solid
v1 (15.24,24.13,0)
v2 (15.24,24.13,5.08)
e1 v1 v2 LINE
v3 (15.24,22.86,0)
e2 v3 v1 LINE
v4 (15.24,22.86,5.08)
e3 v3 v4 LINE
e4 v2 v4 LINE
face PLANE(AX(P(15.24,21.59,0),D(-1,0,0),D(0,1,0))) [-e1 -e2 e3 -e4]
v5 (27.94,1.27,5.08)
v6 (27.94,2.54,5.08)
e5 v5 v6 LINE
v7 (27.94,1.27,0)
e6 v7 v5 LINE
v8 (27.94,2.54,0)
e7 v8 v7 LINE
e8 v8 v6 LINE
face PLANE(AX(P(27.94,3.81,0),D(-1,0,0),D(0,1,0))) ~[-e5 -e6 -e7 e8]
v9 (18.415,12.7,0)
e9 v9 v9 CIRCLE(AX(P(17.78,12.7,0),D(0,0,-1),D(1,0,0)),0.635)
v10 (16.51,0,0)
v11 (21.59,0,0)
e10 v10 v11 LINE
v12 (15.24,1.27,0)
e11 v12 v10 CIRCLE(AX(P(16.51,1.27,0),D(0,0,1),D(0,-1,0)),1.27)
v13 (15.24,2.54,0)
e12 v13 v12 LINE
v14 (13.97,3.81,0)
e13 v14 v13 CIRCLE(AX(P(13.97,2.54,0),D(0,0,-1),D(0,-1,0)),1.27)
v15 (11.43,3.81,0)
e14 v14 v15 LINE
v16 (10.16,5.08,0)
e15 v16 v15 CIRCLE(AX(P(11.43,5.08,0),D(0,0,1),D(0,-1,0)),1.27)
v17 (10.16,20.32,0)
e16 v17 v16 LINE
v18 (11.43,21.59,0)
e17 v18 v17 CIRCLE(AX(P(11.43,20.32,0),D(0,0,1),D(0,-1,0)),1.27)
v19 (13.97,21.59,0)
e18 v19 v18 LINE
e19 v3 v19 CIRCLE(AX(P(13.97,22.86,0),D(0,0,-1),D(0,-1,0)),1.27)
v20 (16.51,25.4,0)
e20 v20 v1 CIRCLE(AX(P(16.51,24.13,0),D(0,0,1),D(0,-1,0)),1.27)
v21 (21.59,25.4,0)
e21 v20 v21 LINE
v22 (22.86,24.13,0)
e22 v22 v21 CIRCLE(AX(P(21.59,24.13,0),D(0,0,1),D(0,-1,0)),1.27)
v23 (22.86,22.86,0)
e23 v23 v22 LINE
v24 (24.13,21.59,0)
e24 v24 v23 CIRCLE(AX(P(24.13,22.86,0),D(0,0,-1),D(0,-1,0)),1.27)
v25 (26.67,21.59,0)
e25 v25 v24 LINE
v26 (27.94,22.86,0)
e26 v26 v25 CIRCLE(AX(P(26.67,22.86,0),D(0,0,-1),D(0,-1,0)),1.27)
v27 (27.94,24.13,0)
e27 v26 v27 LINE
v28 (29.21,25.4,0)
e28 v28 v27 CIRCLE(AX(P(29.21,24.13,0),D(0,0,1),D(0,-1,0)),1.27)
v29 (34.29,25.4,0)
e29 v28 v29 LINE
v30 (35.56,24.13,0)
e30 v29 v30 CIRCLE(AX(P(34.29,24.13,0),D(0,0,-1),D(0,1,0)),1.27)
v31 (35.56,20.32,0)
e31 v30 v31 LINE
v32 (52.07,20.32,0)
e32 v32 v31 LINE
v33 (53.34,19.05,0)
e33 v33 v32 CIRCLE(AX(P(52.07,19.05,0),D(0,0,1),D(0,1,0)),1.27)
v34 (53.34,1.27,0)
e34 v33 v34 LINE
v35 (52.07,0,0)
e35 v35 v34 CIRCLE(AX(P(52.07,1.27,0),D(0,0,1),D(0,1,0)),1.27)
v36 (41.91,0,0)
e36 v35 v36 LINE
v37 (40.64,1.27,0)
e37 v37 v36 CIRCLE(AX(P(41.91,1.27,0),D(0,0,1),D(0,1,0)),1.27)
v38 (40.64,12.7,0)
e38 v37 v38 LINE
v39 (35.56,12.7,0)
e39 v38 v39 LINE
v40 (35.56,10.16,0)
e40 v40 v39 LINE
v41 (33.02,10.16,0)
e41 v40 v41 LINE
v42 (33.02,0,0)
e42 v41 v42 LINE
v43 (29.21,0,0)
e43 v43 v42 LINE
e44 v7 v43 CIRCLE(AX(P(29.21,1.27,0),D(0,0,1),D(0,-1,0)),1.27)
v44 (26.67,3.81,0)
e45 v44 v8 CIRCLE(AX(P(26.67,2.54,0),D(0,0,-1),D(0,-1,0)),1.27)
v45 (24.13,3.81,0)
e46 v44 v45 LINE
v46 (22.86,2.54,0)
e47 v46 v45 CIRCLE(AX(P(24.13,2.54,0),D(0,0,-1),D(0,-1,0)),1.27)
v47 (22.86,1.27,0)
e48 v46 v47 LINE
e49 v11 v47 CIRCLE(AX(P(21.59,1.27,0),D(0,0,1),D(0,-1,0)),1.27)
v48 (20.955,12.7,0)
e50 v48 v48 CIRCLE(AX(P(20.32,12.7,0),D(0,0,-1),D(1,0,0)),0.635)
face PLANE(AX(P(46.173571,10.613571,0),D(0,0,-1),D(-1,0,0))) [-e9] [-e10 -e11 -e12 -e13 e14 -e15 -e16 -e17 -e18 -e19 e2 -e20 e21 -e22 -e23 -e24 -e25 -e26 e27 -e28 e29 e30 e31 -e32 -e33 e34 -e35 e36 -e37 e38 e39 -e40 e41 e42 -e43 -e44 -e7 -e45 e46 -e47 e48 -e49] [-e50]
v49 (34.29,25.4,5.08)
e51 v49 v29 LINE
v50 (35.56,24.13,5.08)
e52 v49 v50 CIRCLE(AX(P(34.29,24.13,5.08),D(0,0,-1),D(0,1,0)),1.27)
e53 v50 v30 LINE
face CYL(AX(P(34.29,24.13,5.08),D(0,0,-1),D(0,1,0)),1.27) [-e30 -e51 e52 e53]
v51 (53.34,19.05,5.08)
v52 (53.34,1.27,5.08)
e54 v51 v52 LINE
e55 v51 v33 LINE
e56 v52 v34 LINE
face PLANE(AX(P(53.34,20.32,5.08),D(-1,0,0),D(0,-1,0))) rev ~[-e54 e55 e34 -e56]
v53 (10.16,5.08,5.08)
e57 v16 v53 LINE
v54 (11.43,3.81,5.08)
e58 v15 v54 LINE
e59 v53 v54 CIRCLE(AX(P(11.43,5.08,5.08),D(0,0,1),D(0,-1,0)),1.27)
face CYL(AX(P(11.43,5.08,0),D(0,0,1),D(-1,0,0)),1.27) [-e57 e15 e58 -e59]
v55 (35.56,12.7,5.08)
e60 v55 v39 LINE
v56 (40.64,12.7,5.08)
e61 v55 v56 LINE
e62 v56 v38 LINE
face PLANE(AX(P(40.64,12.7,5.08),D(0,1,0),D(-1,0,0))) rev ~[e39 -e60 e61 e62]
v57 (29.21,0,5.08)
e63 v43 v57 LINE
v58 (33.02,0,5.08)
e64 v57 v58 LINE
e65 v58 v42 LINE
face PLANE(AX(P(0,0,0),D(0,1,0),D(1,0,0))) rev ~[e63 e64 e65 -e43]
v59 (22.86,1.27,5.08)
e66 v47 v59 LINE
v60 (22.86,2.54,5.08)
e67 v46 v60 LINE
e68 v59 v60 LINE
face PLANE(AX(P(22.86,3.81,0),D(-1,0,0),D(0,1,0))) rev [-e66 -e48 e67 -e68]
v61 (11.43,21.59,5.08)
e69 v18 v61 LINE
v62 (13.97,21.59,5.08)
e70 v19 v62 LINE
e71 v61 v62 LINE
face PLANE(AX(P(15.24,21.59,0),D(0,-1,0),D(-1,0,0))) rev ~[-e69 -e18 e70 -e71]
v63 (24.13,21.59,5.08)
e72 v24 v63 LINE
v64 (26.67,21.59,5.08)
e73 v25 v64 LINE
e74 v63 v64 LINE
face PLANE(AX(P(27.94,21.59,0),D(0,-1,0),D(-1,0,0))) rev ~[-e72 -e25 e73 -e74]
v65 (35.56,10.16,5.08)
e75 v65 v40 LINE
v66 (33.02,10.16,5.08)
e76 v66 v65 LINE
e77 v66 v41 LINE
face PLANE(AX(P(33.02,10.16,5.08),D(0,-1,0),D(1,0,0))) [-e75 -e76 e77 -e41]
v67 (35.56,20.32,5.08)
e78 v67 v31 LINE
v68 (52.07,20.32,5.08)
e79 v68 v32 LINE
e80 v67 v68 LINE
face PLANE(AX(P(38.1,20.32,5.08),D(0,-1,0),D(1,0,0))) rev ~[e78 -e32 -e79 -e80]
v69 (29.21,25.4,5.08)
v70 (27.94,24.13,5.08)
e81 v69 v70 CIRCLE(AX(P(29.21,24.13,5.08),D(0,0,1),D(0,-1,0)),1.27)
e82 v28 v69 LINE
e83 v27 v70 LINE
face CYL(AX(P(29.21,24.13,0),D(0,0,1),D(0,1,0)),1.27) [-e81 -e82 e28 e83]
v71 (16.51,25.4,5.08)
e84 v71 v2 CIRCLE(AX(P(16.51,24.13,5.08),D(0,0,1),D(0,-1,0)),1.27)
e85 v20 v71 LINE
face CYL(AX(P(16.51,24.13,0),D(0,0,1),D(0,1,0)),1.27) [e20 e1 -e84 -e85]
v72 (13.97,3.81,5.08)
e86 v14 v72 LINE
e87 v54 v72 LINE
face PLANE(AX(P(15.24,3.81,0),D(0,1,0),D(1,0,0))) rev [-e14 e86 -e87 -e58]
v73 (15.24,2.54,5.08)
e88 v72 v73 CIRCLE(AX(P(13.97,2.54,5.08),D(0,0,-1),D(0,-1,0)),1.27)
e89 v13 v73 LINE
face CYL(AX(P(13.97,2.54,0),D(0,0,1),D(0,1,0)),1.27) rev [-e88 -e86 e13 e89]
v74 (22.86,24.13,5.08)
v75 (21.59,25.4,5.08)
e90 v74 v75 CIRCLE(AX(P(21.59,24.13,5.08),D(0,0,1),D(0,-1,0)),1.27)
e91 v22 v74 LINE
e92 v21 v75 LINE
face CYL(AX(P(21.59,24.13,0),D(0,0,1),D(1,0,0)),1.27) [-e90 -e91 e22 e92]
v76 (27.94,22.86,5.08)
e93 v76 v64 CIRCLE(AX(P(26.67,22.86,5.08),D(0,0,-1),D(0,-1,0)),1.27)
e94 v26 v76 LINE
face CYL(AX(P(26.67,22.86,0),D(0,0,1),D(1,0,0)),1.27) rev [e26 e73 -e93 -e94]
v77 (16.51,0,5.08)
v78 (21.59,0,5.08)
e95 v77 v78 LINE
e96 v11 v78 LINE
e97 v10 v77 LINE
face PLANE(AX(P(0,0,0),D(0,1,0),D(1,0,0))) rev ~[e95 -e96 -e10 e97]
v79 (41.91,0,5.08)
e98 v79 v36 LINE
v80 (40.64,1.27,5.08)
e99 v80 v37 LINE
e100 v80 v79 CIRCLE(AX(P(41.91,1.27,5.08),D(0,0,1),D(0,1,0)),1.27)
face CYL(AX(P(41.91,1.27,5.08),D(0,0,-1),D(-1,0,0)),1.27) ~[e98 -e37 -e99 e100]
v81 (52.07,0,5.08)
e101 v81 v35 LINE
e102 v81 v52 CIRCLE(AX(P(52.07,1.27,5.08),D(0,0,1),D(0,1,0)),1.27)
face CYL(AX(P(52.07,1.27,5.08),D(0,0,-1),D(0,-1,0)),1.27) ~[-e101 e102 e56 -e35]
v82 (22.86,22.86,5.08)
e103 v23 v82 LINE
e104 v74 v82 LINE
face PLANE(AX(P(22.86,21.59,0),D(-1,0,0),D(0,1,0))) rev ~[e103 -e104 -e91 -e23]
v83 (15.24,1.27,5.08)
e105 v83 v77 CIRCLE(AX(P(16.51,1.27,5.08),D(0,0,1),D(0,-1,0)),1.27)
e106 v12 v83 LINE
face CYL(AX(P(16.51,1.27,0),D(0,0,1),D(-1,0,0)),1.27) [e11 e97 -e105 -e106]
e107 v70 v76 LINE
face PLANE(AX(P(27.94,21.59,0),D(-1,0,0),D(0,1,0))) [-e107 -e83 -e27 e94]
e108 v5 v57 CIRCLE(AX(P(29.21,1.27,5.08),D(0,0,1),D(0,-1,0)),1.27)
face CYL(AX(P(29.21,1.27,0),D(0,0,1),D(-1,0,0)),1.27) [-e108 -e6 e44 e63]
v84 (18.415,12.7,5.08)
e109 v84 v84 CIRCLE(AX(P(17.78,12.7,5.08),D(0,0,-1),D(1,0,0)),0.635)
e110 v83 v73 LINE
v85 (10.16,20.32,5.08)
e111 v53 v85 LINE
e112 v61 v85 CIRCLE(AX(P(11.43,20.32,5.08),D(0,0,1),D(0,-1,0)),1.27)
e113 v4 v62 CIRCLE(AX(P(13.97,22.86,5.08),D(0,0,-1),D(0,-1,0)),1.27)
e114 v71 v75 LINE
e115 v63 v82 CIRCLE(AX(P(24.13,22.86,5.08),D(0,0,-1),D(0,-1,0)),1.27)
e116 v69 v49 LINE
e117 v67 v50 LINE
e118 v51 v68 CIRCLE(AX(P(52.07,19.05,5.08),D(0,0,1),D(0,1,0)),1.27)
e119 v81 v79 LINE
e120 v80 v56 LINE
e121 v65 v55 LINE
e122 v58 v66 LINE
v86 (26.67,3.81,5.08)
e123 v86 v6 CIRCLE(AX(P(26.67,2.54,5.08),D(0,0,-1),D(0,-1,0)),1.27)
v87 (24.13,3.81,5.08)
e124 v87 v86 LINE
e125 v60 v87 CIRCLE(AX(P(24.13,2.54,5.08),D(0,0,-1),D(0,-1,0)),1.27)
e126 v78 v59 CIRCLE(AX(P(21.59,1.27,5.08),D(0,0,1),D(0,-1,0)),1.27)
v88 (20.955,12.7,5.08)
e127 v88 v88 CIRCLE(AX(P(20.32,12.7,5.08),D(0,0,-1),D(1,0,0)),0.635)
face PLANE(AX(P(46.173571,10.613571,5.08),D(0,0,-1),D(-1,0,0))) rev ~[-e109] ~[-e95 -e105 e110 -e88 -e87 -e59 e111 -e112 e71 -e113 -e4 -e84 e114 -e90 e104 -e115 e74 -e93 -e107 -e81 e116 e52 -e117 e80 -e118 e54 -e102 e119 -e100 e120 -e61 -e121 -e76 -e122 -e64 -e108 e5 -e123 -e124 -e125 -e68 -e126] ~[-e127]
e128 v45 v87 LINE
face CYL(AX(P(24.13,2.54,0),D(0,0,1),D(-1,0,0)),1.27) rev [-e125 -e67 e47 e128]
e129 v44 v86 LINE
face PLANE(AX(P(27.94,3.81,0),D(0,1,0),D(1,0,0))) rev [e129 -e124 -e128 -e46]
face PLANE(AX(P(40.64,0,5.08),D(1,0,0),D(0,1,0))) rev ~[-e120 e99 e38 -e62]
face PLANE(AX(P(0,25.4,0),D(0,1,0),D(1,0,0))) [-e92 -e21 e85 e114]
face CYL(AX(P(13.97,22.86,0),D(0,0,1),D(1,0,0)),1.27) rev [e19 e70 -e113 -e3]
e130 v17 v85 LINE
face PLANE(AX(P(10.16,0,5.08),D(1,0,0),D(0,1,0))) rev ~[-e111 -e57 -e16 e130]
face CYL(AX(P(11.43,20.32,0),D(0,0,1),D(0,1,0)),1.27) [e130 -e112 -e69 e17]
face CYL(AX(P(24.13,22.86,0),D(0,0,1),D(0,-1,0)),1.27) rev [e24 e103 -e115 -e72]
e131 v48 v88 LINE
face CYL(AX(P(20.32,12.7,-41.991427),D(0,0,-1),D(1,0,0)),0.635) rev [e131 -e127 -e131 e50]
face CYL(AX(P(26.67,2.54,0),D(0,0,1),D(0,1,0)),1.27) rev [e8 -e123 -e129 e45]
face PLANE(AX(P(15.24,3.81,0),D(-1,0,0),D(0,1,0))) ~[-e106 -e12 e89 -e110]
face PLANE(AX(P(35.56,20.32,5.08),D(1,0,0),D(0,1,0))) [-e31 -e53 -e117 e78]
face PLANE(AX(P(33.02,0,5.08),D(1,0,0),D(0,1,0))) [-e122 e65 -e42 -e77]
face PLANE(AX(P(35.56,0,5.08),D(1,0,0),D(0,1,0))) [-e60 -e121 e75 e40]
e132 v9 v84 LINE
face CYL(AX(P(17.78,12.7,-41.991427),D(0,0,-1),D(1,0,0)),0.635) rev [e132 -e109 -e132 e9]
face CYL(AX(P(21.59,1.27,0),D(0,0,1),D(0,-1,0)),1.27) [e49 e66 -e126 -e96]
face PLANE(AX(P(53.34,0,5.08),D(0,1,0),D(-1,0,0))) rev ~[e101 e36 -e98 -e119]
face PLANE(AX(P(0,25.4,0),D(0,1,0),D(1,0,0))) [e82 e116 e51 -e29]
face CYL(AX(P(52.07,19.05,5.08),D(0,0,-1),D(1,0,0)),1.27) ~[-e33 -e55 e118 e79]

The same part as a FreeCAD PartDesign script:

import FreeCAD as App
import Part
import Sketcher

V = App.Vector
Q = App.Units.Quantity


def edges_at(feature, points):
    """Names of the edges that pass closest to the given points."""
    edges = feature.Shape.Edges
    near = lambda p: min(range(len(edges)), key=lambda i: edges[i].distToShape(Part.Vertex(*p))[0])
    return sorted({f"Edge{near(p) + 1}" for p in points})


def add_polygon(sketch, points):
    """Adds a closed chain of lines whose ends are joined by coincident constraints."""
    first, n = sketch.GeometryCount, len(points)
    for a, b in zip(points, points[1:] + points[:1]):
        sketch.addGeometry(Part.LineSegment(App.Vector(*a, 0), App.Vector(*b, 0)), False)
    for i in range(n):
        sketch.addConstraint(Sketcher.Constraint("Coincident", first + i, 2, first + (i + 1) % n, 1))

doc = App.newDocument("Part")
params = doc.addObject("Spreadsheet::Sheet", "Params")
for row, (alias, value) in enumerate([
    ("sketch1_height", "1 in"),
    ("sketch1_width", "1.5 in"),
    ("pad1_length", "0.2 in"),
    ("sketch2_diameter", "0.05 in"),
    ("sketch3_width", "0.2 in"),
    ("sketch3_height", "0.15 in"),
    ("sketch4_width", "0.1 in"),
    ("sketch4_height", "0.5 in"),
    ("sketch5_width", "0.6 in"),
    ("sketch5_width2", "0.1 in"),
    ("sketch5_height", "0.3 in"),
    ("pad2_length", "0.2 in"),
    ("sketch6_height", "1 in"),
    ("sketch6_width", "0.4 in"),
    ("sketch7_width", "0.1 in"),
    ("sketch7_height", "0.2 in"),
    ("fillet_radius", "0.05 in"),
    ("sketch8_width", "0.1 in"),
    ("sketch8_height", "0.4 in"),
    ("fillet2_radius", "0.05 in"),
], start=1):
    params.set(f"A{row}", alias)
    params.set(f"B{row}", "=" + value)
    params.setAlias(f"B{row}", alias)

body = doc.addObject("PartDesign::Body", "Body")

# Sketch on XY plane
sketch1 = body.newObject("Sketcher::SketchObject", "Sketch")
sketch1.AttachmentSupport = (doc.getObject("XY_Plane"), [""])
sketch1.MapMode = "FlatFace"
add_polygon(sketch1, [(0, 25), (0, 0), (38, 0), (38, 25)])  # lines 0-3
sketch1.addConstraint([
    Sketcher.Constraint("Vertical", 0),
    Sketcher.Constraint("Horizontal", 1),
    Sketcher.Constraint("Vertical", 2),
    Sketcher.Constraint("Horizontal", 3),
    Sketcher.Constraint("Coincident", 0, 2, -1, 1),
    Sketcher.Constraint("DistanceY", 0, 2, 0, 1, Q("1 in")),
    Sketcher.Constraint("DistanceX", 1, 1, 1, 2, Q("1.5 in")),
])
sketch1.setExpression("Constraints[9]", "Params.sketch1_height")
sketch1.setExpression("Constraints[10]", "Params.sketch1_width")
pad1 = body.newObject("PartDesign::Pad", "Pad")
pad1.Profile = sketch1
pad1.setExpression("Length", "Params.pad1_length")

# Sketch on XY plane
sketch2 = body.newObject("Sketcher::SketchObject", "Sketch001")
sketch2.AttachmentSupport = (doc.getObject("XY_Plane"), [""])
sketch2.MapMode = "FlatFace"
sketch2.AttachmentOffset = App.Placement(V(0, 0, 0.2 * 25.4), App.Rotation())
sketch2.addGeometry([
    Part.Circle(V(17.8, 12.7, 0), V(0, 0, 1), 0.6),
    Part.Circle(V(20.3, 12.7, 0), V(0, 0, 1), 0.6),
], False)
sketch2.addConstraint([
    Sketcher.Constraint("Equal", 0, 1),
    Sketcher.Constraint("Horizontal", 0, 3, 1, 3),
    Sketcher.Constraint("Diameter", 0, Q("0.05 in")),
    Sketcher.Constraint("DistanceX", -1, 1, 0, 3, Q("0.7 in")),
    Sketcher.Constraint("DistanceY", -1, 1, 0, 3, Q("0.5 in")),
    Sketcher.Constraint("DistanceX", -1, 1, 1, 3, Q("0.8 in")),
])
sketch2.setExpression("Constraints[2]", "Params.sketch2_diameter")
pocket1 = body.newObject("PartDesign::Pocket", "Pocket")
pocket1.Profile = sketch2
pocket1.Type = "ThroughAll"
pocket1.Midplane = True

# Sketch on XY plane
sketch3 = body.newObject("Sketcher::SketchObject", "Sketch002")
sketch3.AttachmentSupport = (doc.getObject("XY_Plane"), [""])
sketch3.MapMode = "FlatFace"
add_polygon(sketch3, [(27.9, 25.4), (27.9, 21.6), (22.9, 21.6), (22.9, 25.4)])  # lines 0-3
add_polygon(sketch3, [(15.2, 25.4), (15.2, 21.6), (10.2, 21.6), (10.2, 25.4)])  # lines 4-7
sketch3.addConstraint([
    Sketcher.Constraint("Vertical", 0),
    Sketcher.Constraint("Horizontal", 1),
    Sketcher.Constraint("Vertical", 2),
    Sketcher.Constraint("Horizontal", 3),
    Sketcher.Constraint("Vertical", 4),
    Sketcher.Constraint("Horizontal", 5),
    Sketcher.Constraint("Vertical", 6),
    Sketcher.Constraint("Horizontal", 7),
    Sketcher.Constraint("Horizontal", 1, 2, 4, 2),
    Sketcher.Constraint("Horizontal", 3, 2, 6, 2),
    Sketcher.Constraint("Equal", 3, 5),
    Sketcher.Constraint("DistanceX", 1, 2, 1, 1, Q("0.2 in")),
    Sketcher.Constraint("DistanceY", -1, 1, 2, 2, Q("1 in")),
    Sketcher.Constraint("DistanceY", 0, 2, 0, 1, Q("0.15 in")),
    Sketcher.Constraint("DistanceX", -1, 1, 0, 2, Q("1.1 in")),
    Sketcher.Constraint("DistanceX", -1, 1, 4, 2, Q("0.6 in")),
])
sketch3.setExpression("Constraints[19]", "Params.sketch3_width")
sketch3.setExpression("Constraints[21]", "Params.sketch3_height")
pocket2 = body.newObject("PartDesign::Pocket", "Pocket001")
pocket2.Profile = sketch3
pocket2.Type = "ThroughAll"
pocket2.Reversed = True
doc.recompute()

datumplane = body.newObject("PartDesign::Plane", "DatumPlane")
datumplane.AttachmentSupport = (doc.getObject("XZ_Plane"), [""])
datumplane.MapMode = "FlatFace"
datumplane.AttachmentOffset = App.Placement(V(0, 0, -0.5 * 25.4), App.Rotation())
mirrored = body.newObject("PartDesign::Mirrored", "Mirrored")
mirrored.Originals = [pocket2]
mirrored.MirrorPlane = (datumplane, [""])
body.Tip = mirrored

# Sketch on XY plane
sketch4 = body.newObject("Sketcher::SketchObject", "Sketch003")
sketch4.AttachmentSupport = (doc.getObject("XY_Plane"), [""])
sketch4.MapMode = "FlatFace"
sketch4.AttachmentOffset = App.Placement(V(0, 0, 0.2 * 25.4), App.Rotation())
add_polygon(sketch4, [(35.6, 12.7), (35.6, 0), (38.1, 0), (38.1, 12.7)])  # lines 0-3
sketch4.addConstraint([
    Sketcher.Constraint("Vertical", 0),
    Sketcher.Constraint("Horizontal", 1),
    Sketcher.Constraint("Vertical", 2),
    Sketcher.Constraint("Horizontal", 3),
    Sketcher.Constraint("PointOnObject", 0, 2, -1),
    Sketcher.Constraint("DistanceX", 1, 1, 1, 2, Q("0.1 in")),
    Sketcher.Constraint("DistanceY", 0, 2, 0, 1, Q("0.5 in")),
    Sketcher.Constraint("DistanceX", -1, 1, 0, 2, Q("1.4 in")),
])
sketch4.setExpression("Constraints[9]", "Params.sketch4_width")
sketch4.setExpression("Constraints[10]", "Params.sketch4_height")
pocket3 = body.newObject("PartDesign::Pocket", "Pocket002")
pocket3.Profile = sketch4
pocket3.Type = "ThroughAll"

# Sketch on XY plane
sketch5 = body.newObject("Sketcher::SketchObject", "Sketch004")
sketch5.AttachmentSupport = (doc.getObject("XY_Plane"), [""])
sketch5.MapMode = "FlatFace"
sketch5.AttachmentOffset = App.Placement(V(0, 0, 0.2 * 25.4), App.Rotation())
add_polygon(sketch5, [(53.3, 20.3), (38.1, 20.3), (38.1, 12.7), (40.6, 12.7), (40.6, 0), (53.3, 0)])  # lines 0-5
sketch5.addConstraint([
    Sketcher.Constraint("Horizontal", 0),
    Sketcher.Constraint("Vertical", 1),
    Sketcher.Constraint("Horizontal", 2),
    Sketcher.Constraint("Vertical", 3),
    Sketcher.Constraint("Horizontal", 4),
    Sketcher.Constraint("Vertical", 5),
    Sketcher.Constraint("PointOnObject", 3, 2, -1),
    Sketcher.Constraint("Equal", 4, 3),
    Sketcher.Constraint("DistanceX", 0, 2, 0, 1, Q("0.6 in")),
    Sketcher.Constraint("DistanceX", 2, 1, 2, 2, Q("0.1 in")),
    Sketcher.Constraint("DistanceY", 1, 2, 1, 1, Q("0.3 in")),
    Sketcher.Constraint("DistanceX", -1, 1, 0, 2, Q("1.5 in")),
])
sketch5.setExpression("Constraints[14]", "Params.sketch5_width")
sketch5.setExpression("Constraints[15]", "Params.sketch5_width2")
sketch5.setExpression("Constraints[16]", "Params.sketch5_height")
pad2 = body.newObject("PartDesign::Pad", "Pad001")
pad2.Profile = sketch5
pad2.setExpression("Length", "Params.pad2_length")
pad2.Reversed = True

# Sketch on XY plane
sketch6 = body.newObject("Sketcher::SketchObject", "Sketch005")
sketch6.AttachmentSupport = (doc.getObject("XY_Plane"), [""])
sketch6.MapMode = "FlatFace"
sketch6.AttachmentOffset = App.Placement(V(0, 0, 0.2 * 25.4), App.Rotation())
add_polygon(sketch6, [(0, 25), (0, 0), (10, 0), (10, 25)])  # lines 0-3
sketch6.addConstraint([
    Sketcher.Constraint("Vertical", 0),
    Sketcher.Constraint("Horizontal", 1),
    Sketcher.Constraint("Vertical", 2),
    Sketcher.Constraint("Horizontal", 3),
    Sketcher.Constraint("Coincident", 0, 2, -1, 1),
    Sketcher.Constraint("DistanceY", 0, 2, 0, 1, Q("1 in")),
    Sketcher.Constraint("DistanceX", 1, 1, 1, 2, Q("0.4 in")),
])
sketch6.setExpression("Constraints[9]", "Params.sketch6_height")
sketch6.setExpression("Constraints[10]", "Params.sketch6_width")
pocket4 = body.newObject("PartDesign::Pocket", "Pocket003")
pocket4.Profile = sketch6
pocket4.Type = "ThroughAll"

# Sketch on XY plane
sketch7 = body.newObject("Sketcher::SketchObject", "Sketch006")
sketch7.AttachmentSupport = (doc.getObject("XY_Plane"), [""])
sketch7.MapMode = "FlatFace"
sketch7.AttachmentOffset = App.Placement(V(0, 0, 0.2 * 25.4), App.Rotation())
add_polygon(sketch7, [(35.6, 25.4), (35.6, 20.3), (38.1, 20.3), (38.1, 25.4)])  # lines 0-3
sketch7.addConstraint([
    Sketcher.Constraint("Vertical", 0),
    Sketcher.Constraint("Horizontal", 1),
    Sketcher.Constraint("Vertical", 2),
    Sketcher.Constraint("Horizontal", 3),
    Sketcher.Constraint("DistanceX", 1, 1, 1, 2, Q("0.1 in")),
    Sketcher.Constraint("DistanceY", 0, 2, 0, 1, Q("0.2 in")),
    Sketcher.Constraint("DistanceY", -1, 1, 2, 2, Q("1 in")),
    Sketcher.Constraint("DistanceX", -1, 1, 0, 2, Q("1.4 in")),
])
sketch7.setExpression("Constraints[8]", "Params.sketch7_width")
sketch7.setExpression("Constraints[9]", "Params.sketch7_height")
pocket5 = body.newObject("PartDesign::Pocket", "Pocket004")
pocket5.Profile = sketch7
pocket5.Type = "ThroughAll"
doc.recompute()

fillet = body.newObject("PartDesign::Fillet", "Fillet")
fillet.Base = (pocket5, edges_at(pocket5, [
    (35.56, 25.4, 2.54),
    (27.94, 21.59, 2.54),
    (27.94, 25.4, 2.54),
    (22.86, 25.4, 2.54),
    (22.86, 21.59, 2.54),
    (15.24, 21.59, 2.54),
    (15.24, 25.4, 2.54),
    (10.16, 21.59, 2.54),
    (27.94, 0, 2.54),
    (27.94, 3.81, 2.54),
    (22.86, 3.81, 2.54),
    (22.86, 0, 2.54),
    (15.24, 0, 2.54),
    (15.24, 3.81, 2.54),
    (10.16, 3.81, 2.54),
]))
fillet.setExpression("Radius", "Params.fillet_radius")

# Sketch on XY plane
sketch8 = body.newObject("Sketcher::SketchObject", "Sketch007")
sketch8.AttachmentSupport = (doc.getObject("XY_Plane"), [""])
sketch8.MapMode = "FlatFace"
sketch8.AttachmentOffset = App.Placement(V(0, 0, 0.2 * 25.4), App.Rotation())
add_polygon(sketch8, [(33, 10.2), (33, 0), (35.6, 0), (35.6, 10.2)])  # lines 0-3
sketch8.addConstraint([
    Sketcher.Constraint("Vertical", 0),
    Sketcher.Constraint("Horizontal", 1),
    Sketcher.Constraint("Vertical", 2),
    Sketcher.Constraint("Horizontal", 3),
    Sketcher.Constraint("PointOnObject", 0, 2, -1),
    Sketcher.Constraint("DistanceX", 1, 1, 1, 2, Q("0.1 in")),
    Sketcher.Constraint("DistanceY", 0, 2, 0, 1, Q("0.4 in")),
    Sketcher.Constraint("DistanceX", -1, 1, 0, 2, Q("1.3 in")),
])
sketch8.setExpression("Constraints[9]", "Params.sketch8_width")
sketch8.setExpression("Constraints[10]", "Params.sketch8_height")
pocket6 = body.newObject("PartDesign::Pocket", "Pocket005")
pocket6.Profile = sketch8
pocket6.Type = "ThroughAll"
doc.recompute()

fillet2 = body.newObject("PartDesign::Fillet", "Fillet001")
fillet2.Base = (pocket6, edges_at(pocket6, [(53.34, 20.32, 2.54), (53.34, 0, 2.54), (40.64, 0, 2.54)]))
fillet2.setExpression("Radius", "Params.fillet2_radius")

doc.recompute()
